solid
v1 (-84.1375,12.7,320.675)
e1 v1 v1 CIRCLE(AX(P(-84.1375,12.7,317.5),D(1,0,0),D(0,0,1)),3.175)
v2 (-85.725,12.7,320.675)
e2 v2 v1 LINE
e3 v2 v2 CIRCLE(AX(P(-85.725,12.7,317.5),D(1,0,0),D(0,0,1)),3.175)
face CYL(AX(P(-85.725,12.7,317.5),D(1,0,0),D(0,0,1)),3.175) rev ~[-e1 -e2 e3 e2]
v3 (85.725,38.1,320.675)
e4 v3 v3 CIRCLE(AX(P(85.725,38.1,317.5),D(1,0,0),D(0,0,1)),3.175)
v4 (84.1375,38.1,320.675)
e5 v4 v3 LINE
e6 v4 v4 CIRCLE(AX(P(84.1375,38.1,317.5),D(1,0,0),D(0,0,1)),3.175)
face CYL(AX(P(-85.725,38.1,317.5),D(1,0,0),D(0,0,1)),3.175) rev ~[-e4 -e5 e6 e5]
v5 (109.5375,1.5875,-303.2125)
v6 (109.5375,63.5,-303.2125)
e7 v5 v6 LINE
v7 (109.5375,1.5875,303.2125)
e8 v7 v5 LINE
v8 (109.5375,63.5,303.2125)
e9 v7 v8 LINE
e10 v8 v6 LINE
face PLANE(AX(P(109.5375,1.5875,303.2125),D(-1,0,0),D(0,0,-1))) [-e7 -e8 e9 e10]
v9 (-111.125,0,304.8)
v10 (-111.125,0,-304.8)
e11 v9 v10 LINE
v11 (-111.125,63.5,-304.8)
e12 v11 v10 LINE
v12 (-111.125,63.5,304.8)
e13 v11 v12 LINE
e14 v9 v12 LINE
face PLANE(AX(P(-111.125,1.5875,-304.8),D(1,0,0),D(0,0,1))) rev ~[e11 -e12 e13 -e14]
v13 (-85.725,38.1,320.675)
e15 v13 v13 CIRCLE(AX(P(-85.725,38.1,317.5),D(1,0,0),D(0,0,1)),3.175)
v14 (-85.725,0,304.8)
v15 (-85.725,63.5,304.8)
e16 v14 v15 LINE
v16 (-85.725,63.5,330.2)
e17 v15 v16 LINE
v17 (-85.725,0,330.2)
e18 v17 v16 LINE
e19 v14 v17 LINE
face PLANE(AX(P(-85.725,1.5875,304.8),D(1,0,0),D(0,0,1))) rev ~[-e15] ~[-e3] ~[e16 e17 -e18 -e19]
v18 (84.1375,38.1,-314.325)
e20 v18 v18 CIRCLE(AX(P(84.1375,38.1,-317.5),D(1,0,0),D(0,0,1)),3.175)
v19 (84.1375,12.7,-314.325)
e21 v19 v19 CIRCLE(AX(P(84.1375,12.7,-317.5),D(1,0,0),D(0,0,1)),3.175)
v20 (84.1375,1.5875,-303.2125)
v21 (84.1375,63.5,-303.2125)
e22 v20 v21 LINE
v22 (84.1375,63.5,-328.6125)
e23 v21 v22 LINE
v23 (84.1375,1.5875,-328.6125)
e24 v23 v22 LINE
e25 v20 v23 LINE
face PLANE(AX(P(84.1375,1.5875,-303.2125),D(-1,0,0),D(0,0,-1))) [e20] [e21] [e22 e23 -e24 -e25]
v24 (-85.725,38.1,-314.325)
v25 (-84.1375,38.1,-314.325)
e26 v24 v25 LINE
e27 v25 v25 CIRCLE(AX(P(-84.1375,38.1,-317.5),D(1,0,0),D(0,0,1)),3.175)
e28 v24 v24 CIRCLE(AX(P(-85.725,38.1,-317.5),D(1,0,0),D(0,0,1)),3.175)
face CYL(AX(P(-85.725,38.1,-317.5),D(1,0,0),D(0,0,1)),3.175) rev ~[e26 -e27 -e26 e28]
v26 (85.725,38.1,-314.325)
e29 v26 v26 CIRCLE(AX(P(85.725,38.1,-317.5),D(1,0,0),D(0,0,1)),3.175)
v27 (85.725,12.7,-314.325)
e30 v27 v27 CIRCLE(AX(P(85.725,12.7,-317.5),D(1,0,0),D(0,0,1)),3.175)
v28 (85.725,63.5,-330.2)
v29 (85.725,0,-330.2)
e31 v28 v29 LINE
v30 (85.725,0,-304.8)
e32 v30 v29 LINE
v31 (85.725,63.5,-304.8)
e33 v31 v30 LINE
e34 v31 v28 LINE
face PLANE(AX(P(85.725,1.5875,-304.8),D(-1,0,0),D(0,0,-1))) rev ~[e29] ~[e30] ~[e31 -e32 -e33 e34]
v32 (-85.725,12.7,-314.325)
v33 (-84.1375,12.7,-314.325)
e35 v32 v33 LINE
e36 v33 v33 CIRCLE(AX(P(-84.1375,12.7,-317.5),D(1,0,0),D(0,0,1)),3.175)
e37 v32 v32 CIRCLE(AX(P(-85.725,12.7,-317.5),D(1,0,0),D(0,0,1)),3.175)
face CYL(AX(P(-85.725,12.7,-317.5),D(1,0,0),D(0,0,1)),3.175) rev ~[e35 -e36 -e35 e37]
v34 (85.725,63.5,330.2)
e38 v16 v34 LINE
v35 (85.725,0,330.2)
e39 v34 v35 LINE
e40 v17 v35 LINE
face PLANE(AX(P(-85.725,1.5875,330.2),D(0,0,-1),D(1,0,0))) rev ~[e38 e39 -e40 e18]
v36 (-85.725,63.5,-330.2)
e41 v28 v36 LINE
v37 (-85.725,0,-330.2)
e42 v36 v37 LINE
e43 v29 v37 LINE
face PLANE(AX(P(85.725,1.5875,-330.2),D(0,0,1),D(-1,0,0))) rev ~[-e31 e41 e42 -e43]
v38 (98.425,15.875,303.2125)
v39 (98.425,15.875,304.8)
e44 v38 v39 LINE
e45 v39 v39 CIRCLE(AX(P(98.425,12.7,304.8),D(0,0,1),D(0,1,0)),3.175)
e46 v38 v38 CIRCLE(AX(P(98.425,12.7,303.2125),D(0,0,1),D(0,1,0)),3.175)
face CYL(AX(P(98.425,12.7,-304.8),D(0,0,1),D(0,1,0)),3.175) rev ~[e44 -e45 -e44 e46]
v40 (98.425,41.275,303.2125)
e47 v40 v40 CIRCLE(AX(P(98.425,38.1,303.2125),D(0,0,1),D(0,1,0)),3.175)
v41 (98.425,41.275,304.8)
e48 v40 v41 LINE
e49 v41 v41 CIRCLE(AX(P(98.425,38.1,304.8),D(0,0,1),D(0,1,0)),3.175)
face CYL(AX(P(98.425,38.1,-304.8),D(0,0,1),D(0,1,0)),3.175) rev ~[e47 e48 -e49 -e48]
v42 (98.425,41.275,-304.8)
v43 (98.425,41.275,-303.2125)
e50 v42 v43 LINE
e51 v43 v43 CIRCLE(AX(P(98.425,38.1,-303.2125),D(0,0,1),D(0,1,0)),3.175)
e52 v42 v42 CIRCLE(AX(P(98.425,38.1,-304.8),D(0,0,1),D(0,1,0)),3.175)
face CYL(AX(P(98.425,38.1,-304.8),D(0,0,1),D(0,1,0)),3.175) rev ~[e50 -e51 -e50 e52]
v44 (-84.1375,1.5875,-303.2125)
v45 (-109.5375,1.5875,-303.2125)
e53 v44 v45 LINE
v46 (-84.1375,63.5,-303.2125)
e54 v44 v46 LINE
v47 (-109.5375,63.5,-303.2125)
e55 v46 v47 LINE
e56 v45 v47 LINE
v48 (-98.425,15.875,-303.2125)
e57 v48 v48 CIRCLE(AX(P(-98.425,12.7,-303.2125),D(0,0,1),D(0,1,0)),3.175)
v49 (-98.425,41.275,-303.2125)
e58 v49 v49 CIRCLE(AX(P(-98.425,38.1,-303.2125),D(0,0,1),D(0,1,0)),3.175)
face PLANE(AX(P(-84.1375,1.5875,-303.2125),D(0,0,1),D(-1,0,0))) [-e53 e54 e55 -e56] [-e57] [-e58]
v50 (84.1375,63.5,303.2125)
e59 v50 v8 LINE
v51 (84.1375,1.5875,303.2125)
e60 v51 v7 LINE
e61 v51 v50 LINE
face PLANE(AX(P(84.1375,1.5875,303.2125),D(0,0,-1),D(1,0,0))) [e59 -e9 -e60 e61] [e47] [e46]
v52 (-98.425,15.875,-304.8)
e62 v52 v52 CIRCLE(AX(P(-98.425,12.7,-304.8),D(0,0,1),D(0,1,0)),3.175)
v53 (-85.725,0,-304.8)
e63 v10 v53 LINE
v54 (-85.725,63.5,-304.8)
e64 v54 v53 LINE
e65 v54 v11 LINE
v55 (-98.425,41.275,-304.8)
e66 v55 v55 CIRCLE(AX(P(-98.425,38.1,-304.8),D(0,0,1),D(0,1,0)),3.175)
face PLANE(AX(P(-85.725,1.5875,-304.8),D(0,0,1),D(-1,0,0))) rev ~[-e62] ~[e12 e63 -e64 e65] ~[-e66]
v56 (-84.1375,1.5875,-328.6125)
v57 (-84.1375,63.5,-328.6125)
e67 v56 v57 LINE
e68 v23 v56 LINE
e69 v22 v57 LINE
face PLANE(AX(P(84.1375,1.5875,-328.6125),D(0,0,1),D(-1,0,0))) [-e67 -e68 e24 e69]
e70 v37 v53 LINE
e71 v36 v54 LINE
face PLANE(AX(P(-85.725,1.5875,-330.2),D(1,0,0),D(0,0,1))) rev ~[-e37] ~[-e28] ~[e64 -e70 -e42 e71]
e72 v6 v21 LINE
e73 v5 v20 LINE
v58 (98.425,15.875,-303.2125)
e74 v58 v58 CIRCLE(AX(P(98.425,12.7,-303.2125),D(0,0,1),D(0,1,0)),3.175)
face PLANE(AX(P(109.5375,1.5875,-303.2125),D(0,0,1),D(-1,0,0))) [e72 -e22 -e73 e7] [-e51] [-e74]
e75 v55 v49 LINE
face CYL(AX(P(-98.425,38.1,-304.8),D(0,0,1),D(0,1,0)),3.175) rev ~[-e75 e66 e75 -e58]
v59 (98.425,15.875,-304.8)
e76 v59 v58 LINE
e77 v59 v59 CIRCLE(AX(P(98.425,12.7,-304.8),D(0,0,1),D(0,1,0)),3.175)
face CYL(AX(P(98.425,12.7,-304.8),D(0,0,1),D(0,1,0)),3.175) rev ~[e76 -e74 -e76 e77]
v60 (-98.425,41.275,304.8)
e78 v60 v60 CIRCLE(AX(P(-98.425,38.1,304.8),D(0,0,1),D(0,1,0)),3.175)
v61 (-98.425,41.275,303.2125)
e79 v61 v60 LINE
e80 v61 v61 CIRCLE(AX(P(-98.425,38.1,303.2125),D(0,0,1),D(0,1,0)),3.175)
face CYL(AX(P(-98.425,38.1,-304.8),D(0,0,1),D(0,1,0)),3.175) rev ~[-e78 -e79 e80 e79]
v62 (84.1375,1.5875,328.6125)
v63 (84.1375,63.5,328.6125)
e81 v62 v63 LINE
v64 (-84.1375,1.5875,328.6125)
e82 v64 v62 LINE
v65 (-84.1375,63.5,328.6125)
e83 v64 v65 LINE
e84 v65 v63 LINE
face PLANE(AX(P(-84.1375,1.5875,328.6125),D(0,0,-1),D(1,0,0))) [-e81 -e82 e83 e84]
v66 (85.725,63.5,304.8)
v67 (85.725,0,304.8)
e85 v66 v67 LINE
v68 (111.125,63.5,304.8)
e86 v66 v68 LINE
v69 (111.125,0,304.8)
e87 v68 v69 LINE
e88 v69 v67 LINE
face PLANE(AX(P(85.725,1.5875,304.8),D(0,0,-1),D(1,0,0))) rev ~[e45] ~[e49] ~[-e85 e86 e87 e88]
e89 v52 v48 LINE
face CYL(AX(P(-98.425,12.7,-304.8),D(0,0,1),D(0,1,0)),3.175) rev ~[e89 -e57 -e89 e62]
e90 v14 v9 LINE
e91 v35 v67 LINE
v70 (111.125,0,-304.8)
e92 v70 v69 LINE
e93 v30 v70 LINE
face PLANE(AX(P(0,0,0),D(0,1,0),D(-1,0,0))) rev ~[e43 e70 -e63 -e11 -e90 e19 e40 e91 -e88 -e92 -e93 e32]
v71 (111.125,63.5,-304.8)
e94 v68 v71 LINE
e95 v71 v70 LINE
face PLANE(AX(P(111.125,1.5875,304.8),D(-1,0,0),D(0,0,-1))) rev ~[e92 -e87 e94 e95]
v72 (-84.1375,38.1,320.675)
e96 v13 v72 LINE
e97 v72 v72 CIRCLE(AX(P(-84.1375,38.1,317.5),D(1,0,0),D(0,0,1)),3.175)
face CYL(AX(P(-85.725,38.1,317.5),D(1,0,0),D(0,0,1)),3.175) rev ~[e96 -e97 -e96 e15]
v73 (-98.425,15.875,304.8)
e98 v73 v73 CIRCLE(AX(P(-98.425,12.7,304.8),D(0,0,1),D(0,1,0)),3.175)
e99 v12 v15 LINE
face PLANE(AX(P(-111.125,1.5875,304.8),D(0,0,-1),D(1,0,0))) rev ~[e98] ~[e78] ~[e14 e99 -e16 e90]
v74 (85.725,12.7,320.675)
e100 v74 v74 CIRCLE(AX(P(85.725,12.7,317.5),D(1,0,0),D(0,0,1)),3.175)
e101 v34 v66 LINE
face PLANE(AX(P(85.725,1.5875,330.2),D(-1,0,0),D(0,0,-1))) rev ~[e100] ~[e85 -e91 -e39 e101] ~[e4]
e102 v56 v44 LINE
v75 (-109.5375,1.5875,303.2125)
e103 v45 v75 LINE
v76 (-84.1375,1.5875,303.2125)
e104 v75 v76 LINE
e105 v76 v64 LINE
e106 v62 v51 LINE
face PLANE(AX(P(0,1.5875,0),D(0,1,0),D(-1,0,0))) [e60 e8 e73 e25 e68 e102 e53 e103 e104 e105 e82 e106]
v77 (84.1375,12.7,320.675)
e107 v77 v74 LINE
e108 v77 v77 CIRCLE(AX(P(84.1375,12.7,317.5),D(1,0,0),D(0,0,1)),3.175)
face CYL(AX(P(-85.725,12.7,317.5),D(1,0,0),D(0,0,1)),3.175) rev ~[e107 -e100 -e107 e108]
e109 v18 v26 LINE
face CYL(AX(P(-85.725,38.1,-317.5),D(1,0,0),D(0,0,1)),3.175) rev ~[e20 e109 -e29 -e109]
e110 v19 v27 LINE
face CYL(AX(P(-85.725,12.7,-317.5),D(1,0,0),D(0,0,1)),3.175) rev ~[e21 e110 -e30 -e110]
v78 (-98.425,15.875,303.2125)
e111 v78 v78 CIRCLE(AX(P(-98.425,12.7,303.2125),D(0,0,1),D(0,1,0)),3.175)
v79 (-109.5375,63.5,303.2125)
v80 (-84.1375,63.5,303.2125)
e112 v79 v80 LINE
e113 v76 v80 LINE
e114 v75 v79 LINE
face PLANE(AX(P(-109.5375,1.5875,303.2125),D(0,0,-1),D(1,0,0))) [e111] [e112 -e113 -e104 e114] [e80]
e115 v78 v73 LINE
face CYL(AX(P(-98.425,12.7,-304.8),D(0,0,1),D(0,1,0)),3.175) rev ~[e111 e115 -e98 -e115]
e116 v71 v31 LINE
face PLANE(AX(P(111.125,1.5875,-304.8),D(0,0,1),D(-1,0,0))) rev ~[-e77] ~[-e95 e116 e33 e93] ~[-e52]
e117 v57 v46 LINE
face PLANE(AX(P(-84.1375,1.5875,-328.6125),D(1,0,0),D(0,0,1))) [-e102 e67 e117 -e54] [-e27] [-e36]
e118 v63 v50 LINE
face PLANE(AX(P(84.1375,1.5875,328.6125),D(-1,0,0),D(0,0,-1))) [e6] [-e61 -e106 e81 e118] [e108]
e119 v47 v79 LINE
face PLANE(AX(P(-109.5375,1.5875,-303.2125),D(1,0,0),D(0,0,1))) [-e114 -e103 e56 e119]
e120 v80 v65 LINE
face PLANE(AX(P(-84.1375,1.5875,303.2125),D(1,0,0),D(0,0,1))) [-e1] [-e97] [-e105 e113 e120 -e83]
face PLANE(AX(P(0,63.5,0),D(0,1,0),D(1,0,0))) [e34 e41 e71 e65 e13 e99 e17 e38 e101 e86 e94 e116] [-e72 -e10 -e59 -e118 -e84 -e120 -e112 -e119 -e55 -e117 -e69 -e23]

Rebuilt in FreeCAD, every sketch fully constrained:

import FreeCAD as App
import Part
import Sketcher
from FreeCAD import Vector
Q = App.Units.Quantity

doc = App.newDocument("Part")
params = doc.addObject("Spreadsheet::Sheet", "Params")
for row, (alias, value) in enumerate([
    ("sketch1_width", "1 in"),
    ("sketch1_height", "24 in"),
    ("sketch1_width2", "6.75 in"),
    ("pad1_length", "0.0625 in"),
    ("sketch2_width", "1 in"),
    ("sketch2_height", "24 in"),
    ("sketch2_width2", "6.75 in"),
    ("pad2_length", "2.4375 in"),
    ("sketch3_diameter", "0.25 in"),
    ("hole_diameter", "0.25 in"),
    ("sketch4_diameter", "0.25 in"),
    ("hole2_diameter", "0.25 in"),
    ("linearpattern_pitch", "25 in"),
    ("linearpattern2_pitch", "7.75 in"),
], start=1):
    params.set(f"A{row}", alias)
    params.set(f"B{row}", "=" + value)
    params.setAlias(f"B{row}", alias)

body = doc.addObject("PartDesign::Body", "Body")

sketch1 = doc.addObject("Sketcher::SketchObject", "Sketch")
body.addObject(sketch1)
sketch1.AttachmentSupport = (doc.XZ_Plane, [""])
sketch1.MapMode = "FlatFace"
sketch1.addGeometry([
    Part.LineSegment(Vector(85.725, 304.8, 0), Vector(111.125, 304.8, 0)),
    Part.LineSegment(Vector(111.125, 304.8, 0), Vector(111.125, -304.8, 0)),
    Part.LineSegment(Vector(111.125, -304.8, 0), Vector(85.725, -304.8, 0)),
    Part.LineSegment(Vector(85.725, -304.8, 0), Vector(85.725, -330.2, 0)),
    Part.LineSegment(Vector(85.725, -330.2, 0), Vector(-85.725, -330.2, 0)),
    Part.LineSegment(Vector(-85.725, -330.2, 0), Vector(-85.725, -304.8, 0)),
    Part.LineSegment(Vector(-85.725, -304.8, 0), Vector(-111.125, -304.8, 0)),
    Part.LineSegment(Vector(-111.125, -304.8, 0), Vector(-111.125, 304.8, 0)),
    Part.LineSegment(Vector(-111.125, 304.8, 0), Vector(-85.725, 304.8, 0)),
    Part.LineSegment(Vector(-85.725, 304.8, 0), Vector(-85.725, 330.2, 0)),
    Part.LineSegment(Vector(-85.725, 330.2, 0), Vector(85.725, 330.2, 0)),
    Part.LineSegment(Vector(85.725, 330.2, 0), Vector(85.725, 304.8, 0)),
], False)
sketch1.addConstraint([
    Sketcher.Constraint("Coincident", 0, 2, 1, 1),
    Sketcher.Constraint("Coincident", 1, 2, 2, 1),
    Sketcher.Constraint("Coincident", 2, 2, 3, 1),
    Sketcher.Constraint("Coincident", 3, 2, 4, 1),
    Sketcher.Constraint("Coincident", 4, 2, 5, 1),
    Sketcher.Constraint("Coincident", 5, 2, 6, 1),
    Sketcher.Constraint("Coincident", 6, 2, 7, 1),
    Sketcher.Constraint("Coincident", 7, 2, 8, 1),
    Sketcher.Constraint("Coincident", 8, 2, 9, 1),
    Sketcher.Constraint("Coincident", 9, 2, 10, 1),
    Sketcher.Constraint("Coincident", 10, 2, 11, 1),
    Sketcher.Constraint("Coincident", 11, 2, 0, 1),
    Sketcher.Constraint("Horizontal", 0),
    Sketcher.Constraint("Vertical", 1),
    Sketcher.Constraint("Horizontal", 2),
    Sketcher.Constraint("Vertical", 3),
    Sketcher.Constraint("Horizontal", 4),
    Sketcher.Constraint("Vertical", 5),
    Sketcher.Constraint("Horizontal", 6),
    Sketcher.Constraint("Vertical", 7),
    Sketcher.Constraint("Horizontal", 8),
    Sketcher.Constraint("Vertical", 9),
    Sketcher.Constraint("Horizontal", 10),
    Sketcher.Constraint("Vertical", 11),
    Sketcher.Constraint("Symmetric", 0, 2, 6, 2, -1, 1),
    Sketcher.Constraint("Symmetric", 2, 2, 8, 2, -1, 1),
    Sketcher.Constraint("Symmetric", 4, 2, 10, 2, -1, 1),
    Sketcher.Constraint("Symmetric", 2, 2, 5, 2, -2),
    Sketcher.Constraint("Equal", 8, 3),
    Sketcher.Constraint("DistanceX", 0, 1, 0, 2, Q("1 in")),
    Sketcher.Constraint("DistanceY", 1, 2, 1, 1, Q("24 in")),
    Sketcher.Constraint("DistanceX", 4, 2, 4, 1, Q("6.75 in")),
])
sketch1.setExpression("Constraints[29]", "Params.sketch1_width")
sketch1.setExpression("Constraints[30]", "Params.sketch1_height")
sketch1.setExpression("Constraints[31]", "Params.sketch1_width2")
pad1 = doc.addObject("PartDesign::Pad", "Pad")
body.addObject(pad1)
pad1.Profile = sketch1
pad1.setExpression("Length", "Params.pad1_length")
pad1.Reversed = True

sketch2 = doc.addObject("Sketcher::SketchObject", "Sketch001")
body.addObject(sketch2)
sketch2.AttachmentSupport = (doc.XZ_Plane, [""])
sketch2.MapMode = "FlatFace"
sketch2.AttachmentOffset = App.Placement(Vector(0, 0, -0.0625 * 25.4), App.Rotation())
sketch2.addGeometry([
    Part.LineSegment(Vector(-111.125, -304.8, 0), Vector(-111.125, 304.8, 0)),
    Part.LineSegment(Vector(-111.125, 304.8, 0), Vector(-85.725, 304.8, 0)),
    Part.LineSegment(Vector(-85.725, 304.8, 0), Vector(-85.725, 330.2, 0)),
    Part.LineSegment(Vector(-85.725, 330.2, 0), Vector(85.725, 330.2, 0)),
    Part.LineSegment(Vector(85.725, 330.2, 0), Vector(85.725, 304.8, 0)),
    Part.LineSegment(Vector(85.725, 304.8, 0), Vector(111.125, 304.8, 0)),
    Part.LineSegment(Vector(111.125, 304.8, 0), Vector(111.125, -304.8, 0)),
    Part.LineSegment(Vector(111.125, -304.8, 0), Vector(85.725, -304.8, 0)),
    Part.LineSegment(Vector(85.725, -304.8, 0), Vector(85.725, -330.2, 0)),
    Part.LineSegment(Vector(85.725, -330.2, 0), Vector(-85.725, -330.2, 0)),
    Part.LineSegment(Vector(-85.725, -330.2, 0), Vector(-85.725, -304.8, 0)),
    Part.LineSegment(Vector(-85.725, -304.8, 0), Vector(-111.125, -304.8, 0)),
    Part.LineSegment(Vector(-84.1375, 303.2125, 0), Vector(-109.5375, 303.2125, 0)),
    Part.LineSegment(Vector(-109.5375, 303.2125, 0), Vector(-109.5375, -303.2125, 0)),
    Part.LineSegment(Vector(-109.5375, -303.2125, 0), Vector(-84.1375, -303.2125, 0)),
    Part.LineSegment(Vector(-84.1375, -303.2125, 0), Vector(-84.1375, -328.6125, 0)),
    Part.LineSegment(Vector(-84.1375, -328.6125, 0), Vector(84.1375, -328.6125, 0)),
    Part.LineSegment(Vector(84.1375, -328.6125, 0), Vector(84.1375, -303.2125, 0)),
    Part.LineSegment(Vector(84.1375, -303.2125, 0), Vector(109.5375, -303.2125, 0)),
    Part.LineSegment(Vector(109.5375, -303.2125, 0), Vector(109.5375, 303.2125, 0)),
    Part.LineSegment(Vector(109.5375, 303.2125, 0), Vector(84.1375, 303.2125, 0)),
    Part.LineSegment(Vector(84.1375, 303.2125, 0), Vector(84.1375, 328.6125, 0)),
    Part.LineSegment(Vector(84.1375, 328.6125, 0), Vector(-84.1375, 328.6125, 0)),
    Part.LineSegment(Vector(-84.1375, 328.6125, 0), Vector(-84.1375, 303.2125, 0)),
], False)
sketch2.addConstraint([
    Sketcher.Constraint("Coincident", 0, 2, 1, 1),
    Sketcher.Constraint("Coincident", 1, 2, 2, 1),
    Sketcher.Constraint("Coincident", 2, 2, 3, 1),
    Sketcher.Constraint("Coincident", 3, 2, 4, 1),
    Sketcher.Constraint("Coincident", 4, 2, 5, 1),
    Sketcher.Constraint("Coincident", 5, 2, 6, 1),
    Sketcher.Constraint("Coincident", 6, 2, 7, 1),
    Sketcher.Constraint("Coincident", 7, 2, 8, 1),
    Sketcher.Constraint("Coincident", 8, 2, 9, 1),
    Sketcher.Constraint("Coincident", 9, 2, 10, 1),
    Sketcher.Constraint("Coincident", 10, 2, 11, 1),
    Sketcher.Constraint("Coincident", 11, 2, 0, 1),
    Sketcher.Constraint("Coincident", 12, 2, 13, 1),
    Sketcher.Constraint("Coincident", 13, 2, 14, 1),
    Sketcher.Constraint("Coincident", 14, 2, 15, 1),
    Sketcher.Constraint("Coincident", 15, 2, 16, 1),
    Sketcher.Constraint("Coincident", 16, 2, 17, 1),
    Sketcher.Constraint("Coincident", 17, 2, 18, 1),
    Sketcher.Constraint("Coincident", 18, 2, 19, 1),
    Sketcher.Constraint("Coincident", 19, 2, 20, 1),
    Sketcher.Constraint("Coincident", 20, 2, 21, 1),
    Sketcher.Constraint("Coincident", 21, 2, 22, 1),
    Sketcher.Constraint("Coincident", 22, 2, 23, 1),
    Sketcher.Constraint("Coincident", 23, 2, 12, 1),
    Sketcher.Constraint("Vertical", 0),
    Sketcher.Constraint("Horizontal", 1),
    Sketcher.Constraint("Vertical", 2),
    Sketcher.Constraint("Horizontal", 3),
    Sketcher.Constraint("Vertical", 4),
    Sketcher.Constraint("Horizontal", 5),
    Sketcher.Constraint("Vertical", 6),
    Sketcher.Constraint("Horizontal", 7),
    Sketcher.Constraint("Vertical", 8),
    Sketcher.Constraint("Horizontal", 9),
    Sketcher.Constraint("Vertical", 10),
    Sketcher.Constraint("Horizontal", 11),
    Sketcher.Constraint("Horizontal", 12),
    Sketcher.Constraint("Vertical", 13),
    Sketcher.Constraint("Horizontal", 14),
    Sketcher.Constraint("Vertical", 15),
    Sketcher.Constraint("Horizontal", 16),
    Sketcher.Constraint("Vertical", 17),
    Sketcher.Constraint("Horizontal", 18),
    Sketcher.Constraint("Vertical", 19),
    Sketcher.Constraint("Horizontal", 20),
    Sketcher.Constraint("Vertical", 21),
    Sketcher.Constraint("Horizontal", 22),
    Sketcher.Constraint("Vertical", 23),
    Sketcher.Constraint("Symmetric", 0, 2, 6, 2, -1, 1),
    Sketcher.Constraint("Symmetric", 2, 2, 8, 2, -1, 1),
    Sketcher.Constraint("Symmetric", 4, 2, 10, 2, -1, 1),
    Sketcher.Constraint("Symmetric", 12, 2, 18, 2, -1, 1),
    Sketcher.Constraint("Symmetric", 14, 2, 20, 2, -1, 1),
    Sketcher.Constraint("Symmetric", 16, 2, 22, 2, -1, 1),
    Sketcher.Constraint("Symmetric", 1, 2, 4, 2, -2),
    Sketcher.Constraint("Symmetric", 14, 2, 17, 2, -2),
    Sketcher.Constraint("Equal", 11, 12),
    Sketcher.Constraint("Equal", 20, 2),
    Sketcher.Constraint("Equal", 10, 15),
    Sketcher.Constraint("DistanceX", 1, 1, 1, 2, Q("1 in")),
    Sketcher.Constraint("DistanceY", 0, 1, 0, 2, Q("24 in")),
    Sketcher.Constraint("DistanceX", 0, 2, 12, 2, Q("0.0625 in")),
    Sketcher.Constraint("DistanceY", 12, 2, 0, 2, Q("0.0625 in")),
    Sketcher.Constraint("DistanceX", 3, 1, 3, 2, Q("6.75 in")),
])
sketch2.setExpression("Constraints[59]", "Params.sketch2_width")
sketch2.setExpression("Constraints[60]", "Params.sketch2_height")
sketch2.setExpression("Constraints[63]", "Params.sketch2_width2")
pad2 = doc.addObject("PartDesign::Pad", "Pad001")
body.addObject(pad2)
pad2.Profile = sketch2
pad2.setExpression("Length", "Params.pad2_length")
pad2.Reversed = True

sketch3 = doc.addObject("Sketcher::SketchObject", "Sketch002")
body.addObject(sketch3)
sketch3.AttachmentSupport = (doc.YZ_Plane, [""])
sketch3.MapMode = "FlatFace"
sketch3.AttachmentOffset = App.Placement(Vector(0, 0, -3.375 * 25.4), App.Rotation())
sketch3.addGeometry([
    Part.Circle(Vector(38.1, -317.5, 0), Vector(0, 0, 1), 3.175),
    Part.Circle(Vector(12.7, -317.5, 0), Vector(0, 0, 1), 3.175),
], False)
sketch3.addConstraint([
    Sketcher.Constraint("Equal", 0, 1),
    Sketcher.Constraint("Horizontal", 0, 3, 1, 3),
    Sketcher.Constraint("Diameter", 0, Q("0.25 in")),
    Sketcher.Constraint("DistanceX", 1, 3, 0, 3, Q("1 in")),
    Sketcher.Constraint("DistanceX", -1, 1, 0, 3, Q("1.5 in")),
    Sketcher.Constraint("DistanceY", 0, 3, -1, 1, Q("12.5 in")),
])
sketch3.setExpression("Constraints[2]", "Params.sketch3_diameter")
doc.recompute()
hole = doc.addObject("PartDesign::Hole", "Hole")
body.addObject(hole)
hole.Profile = sketch3
hole.ThreadType = "None"
hole.setExpression("Diameter", "Params.hole_diameter")
hole.DepthType = "ThroughAll"
hole.Reversed = True

sketch4 = doc.addObject("Sketcher::SketchObject", "Sketch003")
body.addObject(sketch4)
sketch4.AttachmentSupport = (doc.XY_Plane, [""])
sketch4.MapMode = "FlatFace"
sketch4.AttachmentOffset = App.Placement(Vector(0, 0, -12 * 25.4), App.Rotation())
sketch4.addGeometry([
    Part.Circle(Vector(-98.425, 38.1, 0), Vector(0, 0, 1), 3.175),
    Part.Circle(Vector(-98.425, 12.7, 0), Vector(0, 0, 1), 3.175),
], False)
sketch4.addConstraint([
    Sketcher.Constraint("Equal", 0, 1),
    Sketcher.Constraint("Vertical", 0, 3, 1, 3),
    Sketcher.Constraint("Diameter", 0, Q("0.25 in")),
    Sketcher.Constraint("DistanceY", 1, 3, 0, 3, Q("1 in")),
    Sketcher.Constraint("DistanceY", -1, 1, 0, 3, Q("1.5 in")),
    Sketcher.Constraint("DistanceX", 0, 3, -1, 1, Q("3.875 in")),
])
sketch4.setExpression("Constraints[2]", "Params.sketch4_diameter")
doc.recompute()
hole2 = doc.addObject("PartDesign::Hole", "Hole001")
body.addObject(hole2)
hole2.Profile = sketch4
hole2.ThreadType = "None"
hole2.setExpression("Diameter", "Params.hole2_diameter")
hole2.DepthType = "ThroughAll"
hole2.Reversed = True
doc.recompute()

linearpattern = doc.addObject("PartDesign::LinearPattern", "LinearPattern")
body.addObject(linearpattern)
linearpattern.Originals = [hole]
linearpattern.Direction = (doc.Z_Axis, [""])
linearpattern.Mode = "offset"
linearpattern.setExpression("Offset", "Params.linearpattern_pitch")
linearpattern.Occurrences = 2
body.Tip = linearpattern
doc.recompute()

linearpattern2 = doc.addObject("PartDesign::LinearPattern", "LinearPattern001")
body.addObject(linearpattern2)
linearpattern2.Originals = [hole2]
linearpattern2.Direction = (doc.X_Axis, [""])
linearpattern2.Mode = "offset"
linearpattern2.setExpression("Offset", "Params.linearpattern2_pitch")
linearpattern2.Occurrences = 2
body.Tip = linearpattern2

doc.recompute()
